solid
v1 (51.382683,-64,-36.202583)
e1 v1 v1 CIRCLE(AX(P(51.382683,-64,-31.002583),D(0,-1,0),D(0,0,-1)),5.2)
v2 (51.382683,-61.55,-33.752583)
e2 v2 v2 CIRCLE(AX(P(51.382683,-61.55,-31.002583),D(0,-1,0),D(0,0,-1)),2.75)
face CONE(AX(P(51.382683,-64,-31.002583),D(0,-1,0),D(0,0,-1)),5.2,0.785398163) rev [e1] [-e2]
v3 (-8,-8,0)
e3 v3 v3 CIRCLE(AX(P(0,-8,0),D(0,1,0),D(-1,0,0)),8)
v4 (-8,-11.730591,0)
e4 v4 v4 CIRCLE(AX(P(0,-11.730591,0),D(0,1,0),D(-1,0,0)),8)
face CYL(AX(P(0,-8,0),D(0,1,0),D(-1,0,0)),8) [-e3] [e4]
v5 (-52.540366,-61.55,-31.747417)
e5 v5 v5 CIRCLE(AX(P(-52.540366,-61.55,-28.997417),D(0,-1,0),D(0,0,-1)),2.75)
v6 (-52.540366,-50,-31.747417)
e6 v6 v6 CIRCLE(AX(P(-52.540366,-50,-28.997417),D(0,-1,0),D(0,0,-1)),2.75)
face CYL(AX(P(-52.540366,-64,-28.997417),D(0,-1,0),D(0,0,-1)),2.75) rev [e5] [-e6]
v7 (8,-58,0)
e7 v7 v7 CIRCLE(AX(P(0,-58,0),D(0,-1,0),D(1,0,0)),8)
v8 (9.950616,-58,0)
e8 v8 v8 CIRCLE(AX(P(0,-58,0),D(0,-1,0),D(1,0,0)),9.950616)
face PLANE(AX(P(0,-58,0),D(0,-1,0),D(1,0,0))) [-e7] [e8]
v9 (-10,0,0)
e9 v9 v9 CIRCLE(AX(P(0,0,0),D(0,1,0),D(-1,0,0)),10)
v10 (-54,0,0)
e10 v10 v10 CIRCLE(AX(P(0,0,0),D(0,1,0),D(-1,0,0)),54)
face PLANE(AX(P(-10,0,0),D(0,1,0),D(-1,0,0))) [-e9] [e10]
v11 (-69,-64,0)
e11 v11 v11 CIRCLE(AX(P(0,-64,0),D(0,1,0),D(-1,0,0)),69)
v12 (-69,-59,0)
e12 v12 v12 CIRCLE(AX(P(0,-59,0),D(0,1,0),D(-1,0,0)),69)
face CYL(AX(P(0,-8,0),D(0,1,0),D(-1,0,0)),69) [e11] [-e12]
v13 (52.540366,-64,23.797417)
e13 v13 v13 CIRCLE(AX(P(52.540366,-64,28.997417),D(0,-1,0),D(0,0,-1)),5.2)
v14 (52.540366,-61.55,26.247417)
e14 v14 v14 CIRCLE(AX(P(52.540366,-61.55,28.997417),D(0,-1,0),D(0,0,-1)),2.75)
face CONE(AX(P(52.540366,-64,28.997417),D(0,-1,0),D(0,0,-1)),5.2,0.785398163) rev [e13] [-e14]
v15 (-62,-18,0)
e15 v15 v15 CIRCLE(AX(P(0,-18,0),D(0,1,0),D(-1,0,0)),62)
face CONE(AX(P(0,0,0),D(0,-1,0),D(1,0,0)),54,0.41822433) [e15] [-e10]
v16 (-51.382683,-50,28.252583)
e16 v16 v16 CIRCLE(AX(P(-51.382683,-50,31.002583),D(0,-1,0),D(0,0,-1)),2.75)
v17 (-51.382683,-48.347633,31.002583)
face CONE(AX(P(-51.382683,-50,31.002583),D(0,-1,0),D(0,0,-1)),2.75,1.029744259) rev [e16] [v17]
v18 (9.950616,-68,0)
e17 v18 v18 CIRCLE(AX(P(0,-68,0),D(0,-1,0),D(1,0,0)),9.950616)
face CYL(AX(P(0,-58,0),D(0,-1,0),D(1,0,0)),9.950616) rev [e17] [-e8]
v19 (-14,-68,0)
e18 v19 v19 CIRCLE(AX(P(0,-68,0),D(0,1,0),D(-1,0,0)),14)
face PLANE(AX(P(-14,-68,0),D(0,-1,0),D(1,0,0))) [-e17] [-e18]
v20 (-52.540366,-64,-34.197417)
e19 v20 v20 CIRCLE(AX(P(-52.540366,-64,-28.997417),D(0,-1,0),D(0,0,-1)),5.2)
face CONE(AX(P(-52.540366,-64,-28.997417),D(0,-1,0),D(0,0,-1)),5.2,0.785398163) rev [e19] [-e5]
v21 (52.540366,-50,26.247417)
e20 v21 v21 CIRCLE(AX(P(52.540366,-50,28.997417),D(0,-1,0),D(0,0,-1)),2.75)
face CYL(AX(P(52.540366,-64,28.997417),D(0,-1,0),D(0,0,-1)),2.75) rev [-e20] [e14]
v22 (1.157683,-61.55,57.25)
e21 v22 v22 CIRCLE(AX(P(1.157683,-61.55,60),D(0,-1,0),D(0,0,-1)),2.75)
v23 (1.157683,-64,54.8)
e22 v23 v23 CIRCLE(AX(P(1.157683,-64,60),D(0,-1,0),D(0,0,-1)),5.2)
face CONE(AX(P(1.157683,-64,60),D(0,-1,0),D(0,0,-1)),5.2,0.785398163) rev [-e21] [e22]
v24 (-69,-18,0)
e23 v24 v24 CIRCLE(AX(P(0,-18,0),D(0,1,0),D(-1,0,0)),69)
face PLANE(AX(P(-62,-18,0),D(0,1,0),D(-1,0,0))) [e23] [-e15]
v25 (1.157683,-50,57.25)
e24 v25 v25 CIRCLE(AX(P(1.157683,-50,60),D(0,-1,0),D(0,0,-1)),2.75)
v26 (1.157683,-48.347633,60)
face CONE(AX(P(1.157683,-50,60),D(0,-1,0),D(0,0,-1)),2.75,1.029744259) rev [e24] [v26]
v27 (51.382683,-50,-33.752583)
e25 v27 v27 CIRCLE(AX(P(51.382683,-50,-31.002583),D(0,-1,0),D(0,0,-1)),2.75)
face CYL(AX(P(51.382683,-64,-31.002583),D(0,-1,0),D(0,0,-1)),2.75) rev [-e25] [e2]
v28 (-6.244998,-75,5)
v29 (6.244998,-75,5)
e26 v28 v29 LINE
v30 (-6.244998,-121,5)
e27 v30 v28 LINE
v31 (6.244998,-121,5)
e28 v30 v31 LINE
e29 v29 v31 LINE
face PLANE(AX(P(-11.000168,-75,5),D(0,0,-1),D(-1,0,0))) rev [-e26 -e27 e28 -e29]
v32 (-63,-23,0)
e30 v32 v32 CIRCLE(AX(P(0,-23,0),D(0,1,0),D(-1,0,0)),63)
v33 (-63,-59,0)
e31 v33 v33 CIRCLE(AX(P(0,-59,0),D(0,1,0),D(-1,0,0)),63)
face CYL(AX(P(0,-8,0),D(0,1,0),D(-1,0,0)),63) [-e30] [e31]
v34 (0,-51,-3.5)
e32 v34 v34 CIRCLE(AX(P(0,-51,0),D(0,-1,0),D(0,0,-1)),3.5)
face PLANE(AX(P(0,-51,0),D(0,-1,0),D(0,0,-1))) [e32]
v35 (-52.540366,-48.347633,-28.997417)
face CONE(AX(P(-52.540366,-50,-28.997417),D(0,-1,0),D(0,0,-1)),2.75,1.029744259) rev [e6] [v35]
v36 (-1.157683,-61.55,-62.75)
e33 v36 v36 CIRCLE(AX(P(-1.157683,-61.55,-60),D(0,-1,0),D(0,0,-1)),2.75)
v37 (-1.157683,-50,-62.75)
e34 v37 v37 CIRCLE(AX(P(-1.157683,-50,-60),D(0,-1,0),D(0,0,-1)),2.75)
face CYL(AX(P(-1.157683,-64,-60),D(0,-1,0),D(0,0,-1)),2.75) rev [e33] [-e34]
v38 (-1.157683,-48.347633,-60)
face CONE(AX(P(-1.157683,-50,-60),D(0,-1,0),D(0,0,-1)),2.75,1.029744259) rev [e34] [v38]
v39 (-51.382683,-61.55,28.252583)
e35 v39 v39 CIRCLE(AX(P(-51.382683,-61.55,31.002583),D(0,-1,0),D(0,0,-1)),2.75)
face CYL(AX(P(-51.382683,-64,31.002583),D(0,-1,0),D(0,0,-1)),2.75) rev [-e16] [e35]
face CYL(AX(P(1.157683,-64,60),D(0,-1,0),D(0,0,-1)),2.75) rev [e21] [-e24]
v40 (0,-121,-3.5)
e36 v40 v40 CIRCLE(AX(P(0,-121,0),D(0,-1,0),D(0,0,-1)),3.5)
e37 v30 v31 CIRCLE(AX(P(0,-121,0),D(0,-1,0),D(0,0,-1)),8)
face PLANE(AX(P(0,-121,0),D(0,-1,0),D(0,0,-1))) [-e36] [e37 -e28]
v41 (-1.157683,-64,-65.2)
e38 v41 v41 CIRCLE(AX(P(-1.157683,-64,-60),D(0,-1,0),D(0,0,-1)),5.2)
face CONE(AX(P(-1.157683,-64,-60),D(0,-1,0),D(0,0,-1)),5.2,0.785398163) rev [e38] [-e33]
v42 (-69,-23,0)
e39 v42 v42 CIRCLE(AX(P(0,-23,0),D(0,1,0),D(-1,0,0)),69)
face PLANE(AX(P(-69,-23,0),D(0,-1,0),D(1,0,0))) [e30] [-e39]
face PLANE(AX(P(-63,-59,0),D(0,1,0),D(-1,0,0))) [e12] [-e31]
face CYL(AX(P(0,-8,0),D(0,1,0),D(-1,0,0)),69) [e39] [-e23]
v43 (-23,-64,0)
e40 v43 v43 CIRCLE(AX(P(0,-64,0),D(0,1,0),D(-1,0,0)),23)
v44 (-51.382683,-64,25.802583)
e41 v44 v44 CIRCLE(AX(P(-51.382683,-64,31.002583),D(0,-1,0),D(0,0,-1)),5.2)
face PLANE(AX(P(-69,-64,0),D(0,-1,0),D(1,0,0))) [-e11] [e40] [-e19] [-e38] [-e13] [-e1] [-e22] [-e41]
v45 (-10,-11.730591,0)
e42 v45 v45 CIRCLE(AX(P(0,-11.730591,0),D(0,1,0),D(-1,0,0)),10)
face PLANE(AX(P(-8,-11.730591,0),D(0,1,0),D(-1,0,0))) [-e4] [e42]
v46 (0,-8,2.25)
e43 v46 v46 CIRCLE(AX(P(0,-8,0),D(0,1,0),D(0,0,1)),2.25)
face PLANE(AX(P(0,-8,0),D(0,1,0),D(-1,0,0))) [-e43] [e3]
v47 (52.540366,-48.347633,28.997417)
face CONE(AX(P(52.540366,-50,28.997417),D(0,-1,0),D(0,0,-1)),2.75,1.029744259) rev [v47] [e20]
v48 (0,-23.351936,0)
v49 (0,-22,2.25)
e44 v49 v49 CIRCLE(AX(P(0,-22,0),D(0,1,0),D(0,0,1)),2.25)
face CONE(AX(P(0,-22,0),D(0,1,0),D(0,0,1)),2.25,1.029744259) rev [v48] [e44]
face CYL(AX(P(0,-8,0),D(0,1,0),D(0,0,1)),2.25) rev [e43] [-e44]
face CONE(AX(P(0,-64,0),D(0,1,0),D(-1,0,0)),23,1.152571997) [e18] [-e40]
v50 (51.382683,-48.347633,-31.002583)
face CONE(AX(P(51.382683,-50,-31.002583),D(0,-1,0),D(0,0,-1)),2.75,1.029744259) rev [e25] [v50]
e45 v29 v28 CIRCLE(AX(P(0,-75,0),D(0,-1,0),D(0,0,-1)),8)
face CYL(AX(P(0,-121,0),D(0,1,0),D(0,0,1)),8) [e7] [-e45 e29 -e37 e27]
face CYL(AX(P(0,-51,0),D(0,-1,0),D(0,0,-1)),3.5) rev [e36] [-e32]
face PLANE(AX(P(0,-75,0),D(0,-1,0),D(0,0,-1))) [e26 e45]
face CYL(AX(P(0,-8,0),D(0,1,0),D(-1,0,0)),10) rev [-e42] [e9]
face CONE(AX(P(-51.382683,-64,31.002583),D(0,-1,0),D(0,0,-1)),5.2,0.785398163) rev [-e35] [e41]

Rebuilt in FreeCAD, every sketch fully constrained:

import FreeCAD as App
import Part
import Sketcher
from FreeCAD import Vector
Q = App.Units.Quantity

doc = App.newDocument("Part")
body = doc.addObject("PartDesign::Body", "Body")

# Sketch on XY plane
sketch1 = doc.addObject("Sketcher::SketchObject", "Sketch")
body.addObject(sketch1)
sketch1.AttachmentSupport = (doc.XY_Plane, [""])
sketch1.MapMode = "FlatFace"
sketch1.addGeometry([
    Part.LineSegment(Vector(-10, 0, 0), Vector(-54, 0, 0)),  # 0
    Part.LineSegment(Vector(-54, 0, 0), Vector(-62, -18, 0)),  # 1
    Part.LineSegment(Vector(-62, -18, 0), Vector(-69, -18, 0)),  # 2
    Part.LineSegment(Vector(-69, -18, 0), Vector(-69, -23, 0)),  # 3
    Part.LineSegment(Vector(-69, -23, 0), Vector(-63, -23, 0)),  # 4
    Part.LineSegment(Vector(-63, -23, 0), Vector(-63, -59, 0)),  # 5
    Part.LineSegment(Vector(-63, -59, 0), Vector(-69, -59, 0)),  # 6
    Part.LineSegment(Vector(-69, -59, 0), Vector(-69, -64, 0)),  # 7
    Part.LineSegment(Vector(-69, -64, 0), Vector(-23, -64, 0)),  # 8
    Part.LineSegment(Vector(-23, -64, 0), Vector(-14, -68, 0)),  # 9
    Part.LineSegment(Vector(-14, -68, 0), Vector(0, -68, 0)),  # 10
    Part.LineSegment(Vector(0, -68, 0), Vector(0, -8, 0)),  # 11
    Part.LineSegment(Vector(0, -8, 0), Vector(-8, -8, 0)),  # 12
    Part.LineSegment(Vector(-8, -8, 0), Vector(-8, -11.7, 0)),  # 13
    Part.LineSegment(Vector(-8, -11.7, 0), Vector(-10, -11.7, 0)),  # 14
    Part.LineSegment(Vector(-10, -11.7, 0), Vector(-10, 0, 0)),  # 15
], False)
sketch1.addConstraint([
    Sketcher.Constraint("Coincident", 0, 2, 1, 1),
    Sketcher.Constraint("Coincident", 1, 2, 2, 1),
    Sketcher.Constraint("Coincident", 2, 2, 3, 1),
    Sketcher.Constraint("Coincident", 3, 2, 4, 1),
    Sketcher.Constraint("Coincident", 4, 2, 5, 1),
    Sketcher.Constraint("Coincident", 5, 2, 6, 1),
    Sketcher.Constraint("Coincident", 6, 2, 7, 1),
    Sketcher.Constraint("Coincident", 7, 2, 8, 1),
    Sketcher.Constraint("Coincident", 8, 2, 9, 1),
    Sketcher.Constraint("Coincident", 9, 2, 10, 1),
    Sketcher.Constraint("Coincident", 10, 2, 11, 1),
    Sketcher.Constraint("Coincident", 11, 2, 12, 1),
    Sketcher.Constraint("Coincident", 12, 2, 13, 1),
    Sketcher.Constraint("Coincident", 13, 2, 14, 1),
    Sketcher.Constraint("Coincident", 14, 2, 15, 1),
    Sketcher.Constraint("Coincident", 15, 2, 0, 1),
    Sketcher.Constraint("Horizontal", 0),
    Sketcher.Constraint("Horizontal", 2),
    Sketcher.Constraint("Vertical", 3),
    Sketcher.Constraint("Horizontal", 4),
    Sketcher.Constraint("Vertical", 5),
    Sketcher.Constraint("Horizontal", 6),
    Sketcher.Constraint("Vertical", 7),
    Sketcher.Constraint("Horizontal", 8),
    Sketcher.Constraint("Horizontal", 10),
    Sketcher.Constraint("Vertical", 11),
    Sketcher.Constraint("Horizontal", 12),
    Sketcher.Constraint("Vertical", 13),
    Sketcher.Constraint("Horizontal", 14),
    Sketcher.Constraint("Vertical", 15),
    Sketcher.Constraint("PointOnObject", 0, 2, -1),
    Sketcher.Constraint("PointOnObject", 10, 2, -2),
    Sketcher.Constraint("Perpendicular", 1, 9),
    Sketcher.Constraint("Vertical", 3, 2, 6, 2),
    Sketcher.Constraint("Equal", 3, 7),
    Sketcher.Constraint("DistanceX", 0, 2, 0, 1, 44.0),
    Sketcher.Constraint("DistanceX", 2, 2, 2, 1, 7.0),
    Sketcher.Constraint("DistanceX", 4, 1, 4, 2, 6.0),
    Sketcher.Constraint("DistanceX", 8, 1, 8, 2, 46.0),
    Sketcher.Constraint("DistanceX", 10, 1, 10, 2, 14.0),
    Sketcher.Constraint("DistanceX", 12, 2, 12, 1, 8.0),
    Sketcher.Constraint("DistanceX", 14, 2, 14, 1, 2.0),
    Sketcher.Constraint("DistanceY", 3, 2, 3, 1, 5.0),
    Sketcher.Constraint("DistanceY", 5, 2, 5, 1, 36.0),
    Sketcher.Constraint("DistanceY", 11, 1, 11, 2, 60.0),
    Sketcher.Constraint("DistanceX", 1, 2, -1, 1, 62.0),
    Sketcher.Constraint("DistanceY", 1, 2, -1, 1, 18.0),
    Sketcher.Constraint("DistanceY", 13, 2, 13, 1, 3.730591),
])
revolution = doc.addObject("PartDesign::Revolution", "Revolution")
body.addObject(revolution)
revolution.Profile = sketch1
revolution.ReferenceAxis = (sketch1, ["V_Axis"])
revolution.Angle = 360

# Sketch on XZ plane
sketch2 = doc.addObject("Sketcher::SketchObject", "Sketch001")
body.addObject(sketch2)
sketch2.AttachmentSupport = (doc.XZ_Plane, [""])
sketch2.MapMode = "FlatFace"
sketch2.AttachmentOffset = App.Placement(Vector(0, 0, 121), App.Rotation())
sketch2.addGeometry(Part.Circle(Vector(0, 0, 0), Vector(0, 0, 1), 8), False)
sketch2.addConstraint([
    Sketcher.Constraint("Coincident", 0, 3, -1, 1),
    Sketcher.Constraint("Diameter", 0, 16.0),
])
pad1 = doc.addObject("PartDesign::Pad", "Pad")
body.addObject(pad1)
pad1.Profile = sketch2
pad1.Length = 53
pad1.Reversed = True

# Sketch on XZ plane
sketch3 = doc.addObject("Sketcher::SketchObject", "Sketch002")
body.addObject(sketch3)
sketch3.AttachmentSupport = (doc.XZ_Plane, [""])
sketch3.MapMode = "FlatFace"
sketch3.AttachmentOffset = App.Placement(Vector(0, 0, 121), App.Rotation())
sketch3.addGeometry([
    Part.LineSegment(Vector(-11, 12, 0), Vector(-11, 5, 0)),
    Part.LineSegment(Vector(-11, 5, 0), Vector(11, 5, 0)),
    Part.LineSegment(Vector(11, 5, 0), Vector(11, 12, 0)),
    Part.LineSegment(Vector(11, 12, 0), Vector(-11, 12, 0)),
], False)
sketch3.addConstraint([
    Sketcher.Constraint("Coincident", 0, 2, 1, 1),
    Sketcher.Constraint("Coincident", 1, 2, 2, 1),
    Sketcher.Constraint("Coincident", 2, 2, 3, 1),
    Sketcher.Constraint("Coincident", 3, 2, 0, 1),
    Sketcher.Constraint("Vertical", 0),
    Sketcher.Constraint("Horizontal", 1),
    Sketcher.Constraint("Vertical", 2),
    Sketcher.Constraint("Horizontal", 3),
    Sketcher.Constraint("DistanceY", -1, 1, 0, 2, 5.0),
    Sketcher.Constraint("DistanceX", 1, 1, 1, 2, 21.869381),
    Sketcher.Constraint("DistanceY", 0, 2, 0, 1, 6.809628),
    Sketcher.Constraint("DistanceX", 0, 2, -1, 1, 11.000168),
])
pocket1 = doc.addObject("PartDesign::Pocket", "Pocket")
body.addObject(pocket1)
pocket1.Profile = sketch3
pocket1.Length = 46

# Sketch on XZ plane
sketch4 = doc.addObject("Sketcher::SketchObject", "Sketch003")
body.addObject(sketch4)
sketch4.AttachmentSupport = (doc.XZ_Plane, [""])
sketch4.MapMode = "FlatFace"
sketch4.AttachmentOffset = App.Placement(Vector(0, 0, 121), App.Rotation())
sketch4.addGeometry(Part.Circle(Vector(0, 0, 0), Vector(0, 0, 1), 3.5), False)
sketch4.addConstraint([
    Sketcher.Constraint("Coincident", 0, 3, -1, 1),
    Sketcher.Constraint("Diameter", 0, 7.0),
])
pocket2 = doc.addObject("PartDesign::Pocket", "Pocket001")
body.addObject(pocket2)
pocket2.Profile = sketch4
pocket2.Length = 70

# Sketch on YZ plane
sketch5 = doc.addObject("Sketcher::SketchObject", "Sketch004")
body.addObject(sketch5)
sketch5.AttachmentSupport = (doc.YZ_Plane, [""])
sketch5.MapMode = "FlatFace"
sketch5.AttachmentOffset = App.Placement(Vector(0, 0, -1.157683), App.Rotation())
sketch5.addGeometry([
    Part.LineSegment(Vector(-48.3, -60, 0), Vector(-64, -60, 0)),  # 0
    Part.LineSegment(Vector(-64, -60, 0), Vector(-64, -65.2, 0)),  # 1
    Part.LineSegment(Vector(-64, -65.2, 0), Vector(-61.5, -62.8, 0)),  # 2
    Part.LineSegment(Vector(-61.5, -62.8, 0), Vector(-50, -62.8, 0)),  # 3
    Part.LineSegment(Vector(-50, -62.8, 0), Vector(-48.3, -60, 0)),  # 4
], False)
sketch5.addGeometry(Part.LineSegment(Vector(-64, -60, 0), Vector(-48.3, -60, 0)), True)  # axis
sketch5.addConstraint([
    Sketcher.Constraint("Coincident", 0, 2, 1, 1),
    Sketcher.Constraint("Coincident", 1, 2, 2, 1),
    Sketcher.Constraint("Coincident", 2, 2, 3, 1),
    Sketcher.Constraint("Coincident", 3, 2, 4, 1),
    Sketcher.Constraint("Coincident", 4, 2, 0, 1),
    Sketcher.Constraint("Horizontal", 0),
    Sketcher.Constraint("Vertical", 1),
    Sketcher.Constraint("Horizontal", 3),
    Sketcher.Constraint("Horizontal", 5),
    Sketcher.Constraint("Coincident", 5, 1, 0, 2),
    Sketcher.Constraint("Equal", 0, 5),
    Sketcher.Constraint("Angle", 2, Q("45 deg")),
    Sketcher.Constraint("Angle", 4, Q("59 deg")),
    Sketcher.Constraint("DistanceY", 1, 2, 1, 1, 5.2),
    Sketcher.Constraint("DistanceX", 0, 2, -1, 1, 64.0),
    Sketcher.Constraint("DistanceY", 0, 2, -1, 1, 60.0),
    Sketcher.Constraint("DistanceX", 3, 2, -1, 1, 50.0),
    Sketcher.Constraint("DistanceX", 3, 1, 3, 2, 11.55),
])
groove = doc.addObject("PartDesign::Groove", "Groove")
body.addObject(groove)
groove.Profile = sketch5
groove.ReferenceAxis = (sketch5, ["Axis0"])
groove.Angle = 360
doc.recompute()

polarpattern = doc.addObject("PartDesign::PolarPattern", "PolarPattern")
body.addObject(polarpattern)
polarpattern.Originals = [groove]
polarpattern.Axis = (doc.Y_Axis, [""])
polarpattern.Angle = 360
polarpattern.Occurrences = 6
body.Tip = polarpattern

# Sketch on XZ plane
sketch6 = doc.addObject("Sketcher::SketchObject", "Sketch005")
body.addObject(sketch6)
sketch6.AttachmentSupport = (doc.XZ_Plane, [""])
sketch6.MapMode = "FlatFace"
sketch6.AttachmentOffset = App.Placement(Vector(0, 0, 8), App.Rotation())
sketch6.addGeometry(Part.Circle(Vector(0, 0, 0), Vector(0, 0, 1), 2.2), False)
sketch6.addConstraint([
    Sketcher.Constraint("Coincident", 0, 3, -1, 1),
    Sketcher.Constraint("Diameter", 0, 4.5),
])
doc.recompute()
hole = doc.addObject("PartDesign::Hole", "Hole")
body.addObject(hole)
hole.Profile = sketch6
hole.ThreadType = "None"
hole.Diameter = 4.5
hole.DepthType = "Dimension"
hole.Depth = 14
hole.DrillPoint = "Angled"
hole.DrillPointAngle = 118
hole.Reversed = True

# Sketch on XZ plane
sketch7 = doc.addObject("Sketcher::SketchObject", "Sketch006")
body.addObject(sketch7)
sketch7.AttachmentSupport = (doc.XZ_Plane, [""])
sketch7.MapMode = "FlatFace"
sketch7.AttachmentOffset = App.Placement(Vector(0, 0, 68), App.Rotation())
sketch7.addGeometry([
    Part.Circle(Vector(0, 0, 0), Vector(0, 0, 1), 10),
    Part.Circle(Vector(0, 0, 0), Vector(0, 0, 1), 8),
], False)
sketch7.addConstraint([
    Sketcher.Constraint("Coincident", 0, 3, -1, 1),
    Sketcher.Constraint("Coincident", 1, 3, -1, 1),
    Sketcher.Constraint("Diameter", 1, 16.0),
    Sketcher.Constraint("Diameter", 0, 19.901232),
])
pocket3 = doc.addObject("PartDesign::Pocket", "Pocket002")
body.addObject(pocket3)
pocket3.Profile = sketch7
pocket3.Length = 10

doc.recompute()
